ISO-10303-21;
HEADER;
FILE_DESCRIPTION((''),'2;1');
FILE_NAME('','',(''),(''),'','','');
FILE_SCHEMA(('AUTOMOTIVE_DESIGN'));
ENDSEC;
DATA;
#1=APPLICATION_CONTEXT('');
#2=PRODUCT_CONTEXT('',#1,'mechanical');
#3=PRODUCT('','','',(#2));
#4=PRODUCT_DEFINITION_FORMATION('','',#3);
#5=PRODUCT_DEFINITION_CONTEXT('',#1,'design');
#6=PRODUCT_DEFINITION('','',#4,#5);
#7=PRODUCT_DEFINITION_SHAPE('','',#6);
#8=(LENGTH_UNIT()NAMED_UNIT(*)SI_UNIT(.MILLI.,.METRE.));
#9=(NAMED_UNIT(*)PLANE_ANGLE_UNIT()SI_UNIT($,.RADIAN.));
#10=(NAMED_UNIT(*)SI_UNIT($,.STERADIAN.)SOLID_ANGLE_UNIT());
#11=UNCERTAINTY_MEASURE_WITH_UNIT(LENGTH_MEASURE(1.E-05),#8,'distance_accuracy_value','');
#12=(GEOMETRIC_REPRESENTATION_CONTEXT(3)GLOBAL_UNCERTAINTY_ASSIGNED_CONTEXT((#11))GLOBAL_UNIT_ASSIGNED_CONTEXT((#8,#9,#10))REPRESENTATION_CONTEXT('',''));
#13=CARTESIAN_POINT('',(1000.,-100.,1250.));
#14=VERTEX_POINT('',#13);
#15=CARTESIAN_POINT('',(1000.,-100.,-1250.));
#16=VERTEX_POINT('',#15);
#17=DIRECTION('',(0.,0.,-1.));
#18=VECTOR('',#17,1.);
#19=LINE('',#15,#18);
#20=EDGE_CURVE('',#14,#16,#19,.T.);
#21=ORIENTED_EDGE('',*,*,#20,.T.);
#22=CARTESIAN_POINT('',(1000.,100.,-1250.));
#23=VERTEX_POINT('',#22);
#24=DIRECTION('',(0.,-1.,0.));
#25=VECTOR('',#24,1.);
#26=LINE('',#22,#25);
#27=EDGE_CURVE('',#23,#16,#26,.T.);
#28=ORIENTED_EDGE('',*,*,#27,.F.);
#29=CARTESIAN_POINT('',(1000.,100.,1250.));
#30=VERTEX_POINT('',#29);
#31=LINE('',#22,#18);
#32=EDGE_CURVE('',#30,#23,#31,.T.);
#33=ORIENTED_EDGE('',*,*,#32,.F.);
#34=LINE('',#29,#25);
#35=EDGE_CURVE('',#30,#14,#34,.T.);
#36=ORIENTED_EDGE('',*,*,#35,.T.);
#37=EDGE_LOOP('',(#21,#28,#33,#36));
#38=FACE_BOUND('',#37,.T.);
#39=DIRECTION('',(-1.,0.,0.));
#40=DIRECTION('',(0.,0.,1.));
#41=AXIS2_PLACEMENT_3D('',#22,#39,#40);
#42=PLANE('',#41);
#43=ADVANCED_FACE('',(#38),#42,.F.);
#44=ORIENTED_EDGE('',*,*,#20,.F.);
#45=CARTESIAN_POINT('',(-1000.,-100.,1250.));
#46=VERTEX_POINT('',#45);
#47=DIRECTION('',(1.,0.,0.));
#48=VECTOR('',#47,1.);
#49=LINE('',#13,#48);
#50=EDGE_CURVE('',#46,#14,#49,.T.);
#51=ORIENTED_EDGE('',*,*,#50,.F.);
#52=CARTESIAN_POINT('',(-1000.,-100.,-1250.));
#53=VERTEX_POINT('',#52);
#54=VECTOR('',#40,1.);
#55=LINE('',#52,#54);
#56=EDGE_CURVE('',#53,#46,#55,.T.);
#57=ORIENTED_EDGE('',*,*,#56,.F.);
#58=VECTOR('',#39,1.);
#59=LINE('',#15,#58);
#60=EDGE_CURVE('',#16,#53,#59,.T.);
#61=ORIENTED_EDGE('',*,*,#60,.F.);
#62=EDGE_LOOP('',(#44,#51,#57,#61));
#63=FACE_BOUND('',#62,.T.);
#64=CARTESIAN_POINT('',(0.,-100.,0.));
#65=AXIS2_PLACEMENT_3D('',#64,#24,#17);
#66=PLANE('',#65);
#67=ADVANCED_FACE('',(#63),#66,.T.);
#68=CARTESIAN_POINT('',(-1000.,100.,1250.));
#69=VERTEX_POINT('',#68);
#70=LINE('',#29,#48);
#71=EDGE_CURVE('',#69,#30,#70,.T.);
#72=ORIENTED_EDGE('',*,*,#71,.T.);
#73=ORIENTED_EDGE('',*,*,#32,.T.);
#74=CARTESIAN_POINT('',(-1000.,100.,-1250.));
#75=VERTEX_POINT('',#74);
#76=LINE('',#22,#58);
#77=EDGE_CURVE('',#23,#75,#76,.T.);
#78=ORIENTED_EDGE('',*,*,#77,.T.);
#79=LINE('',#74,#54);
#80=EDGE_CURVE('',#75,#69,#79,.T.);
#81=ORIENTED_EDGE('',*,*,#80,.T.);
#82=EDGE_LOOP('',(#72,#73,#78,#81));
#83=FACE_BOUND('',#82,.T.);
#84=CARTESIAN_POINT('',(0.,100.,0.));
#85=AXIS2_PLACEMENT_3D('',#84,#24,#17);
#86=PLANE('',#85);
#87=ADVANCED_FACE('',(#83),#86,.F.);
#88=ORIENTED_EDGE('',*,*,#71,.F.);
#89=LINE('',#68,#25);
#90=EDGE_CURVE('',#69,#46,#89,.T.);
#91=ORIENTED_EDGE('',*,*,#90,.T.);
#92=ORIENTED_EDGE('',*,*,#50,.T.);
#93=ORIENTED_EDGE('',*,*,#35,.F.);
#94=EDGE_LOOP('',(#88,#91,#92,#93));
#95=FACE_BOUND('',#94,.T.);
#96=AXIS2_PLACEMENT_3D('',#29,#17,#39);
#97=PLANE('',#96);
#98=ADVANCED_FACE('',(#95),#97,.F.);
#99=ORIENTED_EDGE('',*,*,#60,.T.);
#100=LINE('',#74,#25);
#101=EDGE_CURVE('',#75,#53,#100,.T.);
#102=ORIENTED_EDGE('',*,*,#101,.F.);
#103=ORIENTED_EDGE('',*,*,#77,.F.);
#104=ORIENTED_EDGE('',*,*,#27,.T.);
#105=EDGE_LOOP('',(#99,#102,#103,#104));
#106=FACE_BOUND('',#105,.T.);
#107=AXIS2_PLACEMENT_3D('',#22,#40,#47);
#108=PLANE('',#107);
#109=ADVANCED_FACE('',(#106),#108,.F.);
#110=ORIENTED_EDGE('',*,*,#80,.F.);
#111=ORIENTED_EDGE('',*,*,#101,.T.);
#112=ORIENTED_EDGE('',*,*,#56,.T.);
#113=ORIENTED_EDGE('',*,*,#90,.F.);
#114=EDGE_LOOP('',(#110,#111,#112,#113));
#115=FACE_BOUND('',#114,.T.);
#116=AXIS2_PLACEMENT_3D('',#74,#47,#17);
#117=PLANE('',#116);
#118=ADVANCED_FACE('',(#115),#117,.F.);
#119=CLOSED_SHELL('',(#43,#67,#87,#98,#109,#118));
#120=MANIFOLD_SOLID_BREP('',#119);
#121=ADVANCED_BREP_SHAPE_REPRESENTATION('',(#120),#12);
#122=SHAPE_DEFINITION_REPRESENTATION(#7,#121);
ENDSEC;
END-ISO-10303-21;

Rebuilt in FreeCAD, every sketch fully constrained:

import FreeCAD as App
import Part
import Sketcher


def add_polygon(sketch, points):
    """Adds a closed chain of lines whose ends are joined by coincident constraints."""
    first, n = sketch.GeometryCount, len(points)
    for a, b in zip(points, points[1:] + points[:1]):
        sketch.addGeometry(Part.LineSegment(App.Vector(*a, 0), App.Vector(*b, 0)), False)
    for i in range(n):
        sketch.addConstraint(Sketcher.Constraint("Coincident", first + i, 2, first + (i + 1) % n, 1))

doc = App.newDocument("Part")
body = doc.addObject("PartDesign::Body", "Body")

# Sketch on XZ plane
sketch1 = doc.addObject("Sketcher::SketchObject", "Sketch")
body.addObject(sketch1)
sketch1.AttachmentSupport = (doc.XZ_Plane, [""])
sketch1.MapMode = "FlatFace"
add_polygon(sketch1, [(-1000, -1250), (-1000, 1250), (1000, 1250), (1000, -1250)])  # lines 0-3
sketch1.addConstraint(Sketcher.Constraint("Vertical", 0))
sketch1.addConstraint(Sketcher.Constraint("Horizontal", 1))
sketch1.addConstraint(Sketcher.Constraint("Vertical", 2))
sketch1.addConstraint(Sketcher.Constraint("Horizontal", 3))
sketch1.addConstraint(Sketcher.Constraint("Symmetric", 0, 2, 2, 2, -1, 1))
sketch1.addConstraint(Sketcher.Constraint("DistanceX", 1, 1, 1, 2, 2000.0))
sketch1.addConstraint(Sketcher.Constraint("DistanceY", 0, 1, 0, 2, 2500.0))
pad1 = doc.addObject("PartDesign::Pad", "Pad")
body.addObject(pad1)
pad1.Profile = sketch1
pad1.Length = 200
pad1.Midplane = True

doc.recompute()
